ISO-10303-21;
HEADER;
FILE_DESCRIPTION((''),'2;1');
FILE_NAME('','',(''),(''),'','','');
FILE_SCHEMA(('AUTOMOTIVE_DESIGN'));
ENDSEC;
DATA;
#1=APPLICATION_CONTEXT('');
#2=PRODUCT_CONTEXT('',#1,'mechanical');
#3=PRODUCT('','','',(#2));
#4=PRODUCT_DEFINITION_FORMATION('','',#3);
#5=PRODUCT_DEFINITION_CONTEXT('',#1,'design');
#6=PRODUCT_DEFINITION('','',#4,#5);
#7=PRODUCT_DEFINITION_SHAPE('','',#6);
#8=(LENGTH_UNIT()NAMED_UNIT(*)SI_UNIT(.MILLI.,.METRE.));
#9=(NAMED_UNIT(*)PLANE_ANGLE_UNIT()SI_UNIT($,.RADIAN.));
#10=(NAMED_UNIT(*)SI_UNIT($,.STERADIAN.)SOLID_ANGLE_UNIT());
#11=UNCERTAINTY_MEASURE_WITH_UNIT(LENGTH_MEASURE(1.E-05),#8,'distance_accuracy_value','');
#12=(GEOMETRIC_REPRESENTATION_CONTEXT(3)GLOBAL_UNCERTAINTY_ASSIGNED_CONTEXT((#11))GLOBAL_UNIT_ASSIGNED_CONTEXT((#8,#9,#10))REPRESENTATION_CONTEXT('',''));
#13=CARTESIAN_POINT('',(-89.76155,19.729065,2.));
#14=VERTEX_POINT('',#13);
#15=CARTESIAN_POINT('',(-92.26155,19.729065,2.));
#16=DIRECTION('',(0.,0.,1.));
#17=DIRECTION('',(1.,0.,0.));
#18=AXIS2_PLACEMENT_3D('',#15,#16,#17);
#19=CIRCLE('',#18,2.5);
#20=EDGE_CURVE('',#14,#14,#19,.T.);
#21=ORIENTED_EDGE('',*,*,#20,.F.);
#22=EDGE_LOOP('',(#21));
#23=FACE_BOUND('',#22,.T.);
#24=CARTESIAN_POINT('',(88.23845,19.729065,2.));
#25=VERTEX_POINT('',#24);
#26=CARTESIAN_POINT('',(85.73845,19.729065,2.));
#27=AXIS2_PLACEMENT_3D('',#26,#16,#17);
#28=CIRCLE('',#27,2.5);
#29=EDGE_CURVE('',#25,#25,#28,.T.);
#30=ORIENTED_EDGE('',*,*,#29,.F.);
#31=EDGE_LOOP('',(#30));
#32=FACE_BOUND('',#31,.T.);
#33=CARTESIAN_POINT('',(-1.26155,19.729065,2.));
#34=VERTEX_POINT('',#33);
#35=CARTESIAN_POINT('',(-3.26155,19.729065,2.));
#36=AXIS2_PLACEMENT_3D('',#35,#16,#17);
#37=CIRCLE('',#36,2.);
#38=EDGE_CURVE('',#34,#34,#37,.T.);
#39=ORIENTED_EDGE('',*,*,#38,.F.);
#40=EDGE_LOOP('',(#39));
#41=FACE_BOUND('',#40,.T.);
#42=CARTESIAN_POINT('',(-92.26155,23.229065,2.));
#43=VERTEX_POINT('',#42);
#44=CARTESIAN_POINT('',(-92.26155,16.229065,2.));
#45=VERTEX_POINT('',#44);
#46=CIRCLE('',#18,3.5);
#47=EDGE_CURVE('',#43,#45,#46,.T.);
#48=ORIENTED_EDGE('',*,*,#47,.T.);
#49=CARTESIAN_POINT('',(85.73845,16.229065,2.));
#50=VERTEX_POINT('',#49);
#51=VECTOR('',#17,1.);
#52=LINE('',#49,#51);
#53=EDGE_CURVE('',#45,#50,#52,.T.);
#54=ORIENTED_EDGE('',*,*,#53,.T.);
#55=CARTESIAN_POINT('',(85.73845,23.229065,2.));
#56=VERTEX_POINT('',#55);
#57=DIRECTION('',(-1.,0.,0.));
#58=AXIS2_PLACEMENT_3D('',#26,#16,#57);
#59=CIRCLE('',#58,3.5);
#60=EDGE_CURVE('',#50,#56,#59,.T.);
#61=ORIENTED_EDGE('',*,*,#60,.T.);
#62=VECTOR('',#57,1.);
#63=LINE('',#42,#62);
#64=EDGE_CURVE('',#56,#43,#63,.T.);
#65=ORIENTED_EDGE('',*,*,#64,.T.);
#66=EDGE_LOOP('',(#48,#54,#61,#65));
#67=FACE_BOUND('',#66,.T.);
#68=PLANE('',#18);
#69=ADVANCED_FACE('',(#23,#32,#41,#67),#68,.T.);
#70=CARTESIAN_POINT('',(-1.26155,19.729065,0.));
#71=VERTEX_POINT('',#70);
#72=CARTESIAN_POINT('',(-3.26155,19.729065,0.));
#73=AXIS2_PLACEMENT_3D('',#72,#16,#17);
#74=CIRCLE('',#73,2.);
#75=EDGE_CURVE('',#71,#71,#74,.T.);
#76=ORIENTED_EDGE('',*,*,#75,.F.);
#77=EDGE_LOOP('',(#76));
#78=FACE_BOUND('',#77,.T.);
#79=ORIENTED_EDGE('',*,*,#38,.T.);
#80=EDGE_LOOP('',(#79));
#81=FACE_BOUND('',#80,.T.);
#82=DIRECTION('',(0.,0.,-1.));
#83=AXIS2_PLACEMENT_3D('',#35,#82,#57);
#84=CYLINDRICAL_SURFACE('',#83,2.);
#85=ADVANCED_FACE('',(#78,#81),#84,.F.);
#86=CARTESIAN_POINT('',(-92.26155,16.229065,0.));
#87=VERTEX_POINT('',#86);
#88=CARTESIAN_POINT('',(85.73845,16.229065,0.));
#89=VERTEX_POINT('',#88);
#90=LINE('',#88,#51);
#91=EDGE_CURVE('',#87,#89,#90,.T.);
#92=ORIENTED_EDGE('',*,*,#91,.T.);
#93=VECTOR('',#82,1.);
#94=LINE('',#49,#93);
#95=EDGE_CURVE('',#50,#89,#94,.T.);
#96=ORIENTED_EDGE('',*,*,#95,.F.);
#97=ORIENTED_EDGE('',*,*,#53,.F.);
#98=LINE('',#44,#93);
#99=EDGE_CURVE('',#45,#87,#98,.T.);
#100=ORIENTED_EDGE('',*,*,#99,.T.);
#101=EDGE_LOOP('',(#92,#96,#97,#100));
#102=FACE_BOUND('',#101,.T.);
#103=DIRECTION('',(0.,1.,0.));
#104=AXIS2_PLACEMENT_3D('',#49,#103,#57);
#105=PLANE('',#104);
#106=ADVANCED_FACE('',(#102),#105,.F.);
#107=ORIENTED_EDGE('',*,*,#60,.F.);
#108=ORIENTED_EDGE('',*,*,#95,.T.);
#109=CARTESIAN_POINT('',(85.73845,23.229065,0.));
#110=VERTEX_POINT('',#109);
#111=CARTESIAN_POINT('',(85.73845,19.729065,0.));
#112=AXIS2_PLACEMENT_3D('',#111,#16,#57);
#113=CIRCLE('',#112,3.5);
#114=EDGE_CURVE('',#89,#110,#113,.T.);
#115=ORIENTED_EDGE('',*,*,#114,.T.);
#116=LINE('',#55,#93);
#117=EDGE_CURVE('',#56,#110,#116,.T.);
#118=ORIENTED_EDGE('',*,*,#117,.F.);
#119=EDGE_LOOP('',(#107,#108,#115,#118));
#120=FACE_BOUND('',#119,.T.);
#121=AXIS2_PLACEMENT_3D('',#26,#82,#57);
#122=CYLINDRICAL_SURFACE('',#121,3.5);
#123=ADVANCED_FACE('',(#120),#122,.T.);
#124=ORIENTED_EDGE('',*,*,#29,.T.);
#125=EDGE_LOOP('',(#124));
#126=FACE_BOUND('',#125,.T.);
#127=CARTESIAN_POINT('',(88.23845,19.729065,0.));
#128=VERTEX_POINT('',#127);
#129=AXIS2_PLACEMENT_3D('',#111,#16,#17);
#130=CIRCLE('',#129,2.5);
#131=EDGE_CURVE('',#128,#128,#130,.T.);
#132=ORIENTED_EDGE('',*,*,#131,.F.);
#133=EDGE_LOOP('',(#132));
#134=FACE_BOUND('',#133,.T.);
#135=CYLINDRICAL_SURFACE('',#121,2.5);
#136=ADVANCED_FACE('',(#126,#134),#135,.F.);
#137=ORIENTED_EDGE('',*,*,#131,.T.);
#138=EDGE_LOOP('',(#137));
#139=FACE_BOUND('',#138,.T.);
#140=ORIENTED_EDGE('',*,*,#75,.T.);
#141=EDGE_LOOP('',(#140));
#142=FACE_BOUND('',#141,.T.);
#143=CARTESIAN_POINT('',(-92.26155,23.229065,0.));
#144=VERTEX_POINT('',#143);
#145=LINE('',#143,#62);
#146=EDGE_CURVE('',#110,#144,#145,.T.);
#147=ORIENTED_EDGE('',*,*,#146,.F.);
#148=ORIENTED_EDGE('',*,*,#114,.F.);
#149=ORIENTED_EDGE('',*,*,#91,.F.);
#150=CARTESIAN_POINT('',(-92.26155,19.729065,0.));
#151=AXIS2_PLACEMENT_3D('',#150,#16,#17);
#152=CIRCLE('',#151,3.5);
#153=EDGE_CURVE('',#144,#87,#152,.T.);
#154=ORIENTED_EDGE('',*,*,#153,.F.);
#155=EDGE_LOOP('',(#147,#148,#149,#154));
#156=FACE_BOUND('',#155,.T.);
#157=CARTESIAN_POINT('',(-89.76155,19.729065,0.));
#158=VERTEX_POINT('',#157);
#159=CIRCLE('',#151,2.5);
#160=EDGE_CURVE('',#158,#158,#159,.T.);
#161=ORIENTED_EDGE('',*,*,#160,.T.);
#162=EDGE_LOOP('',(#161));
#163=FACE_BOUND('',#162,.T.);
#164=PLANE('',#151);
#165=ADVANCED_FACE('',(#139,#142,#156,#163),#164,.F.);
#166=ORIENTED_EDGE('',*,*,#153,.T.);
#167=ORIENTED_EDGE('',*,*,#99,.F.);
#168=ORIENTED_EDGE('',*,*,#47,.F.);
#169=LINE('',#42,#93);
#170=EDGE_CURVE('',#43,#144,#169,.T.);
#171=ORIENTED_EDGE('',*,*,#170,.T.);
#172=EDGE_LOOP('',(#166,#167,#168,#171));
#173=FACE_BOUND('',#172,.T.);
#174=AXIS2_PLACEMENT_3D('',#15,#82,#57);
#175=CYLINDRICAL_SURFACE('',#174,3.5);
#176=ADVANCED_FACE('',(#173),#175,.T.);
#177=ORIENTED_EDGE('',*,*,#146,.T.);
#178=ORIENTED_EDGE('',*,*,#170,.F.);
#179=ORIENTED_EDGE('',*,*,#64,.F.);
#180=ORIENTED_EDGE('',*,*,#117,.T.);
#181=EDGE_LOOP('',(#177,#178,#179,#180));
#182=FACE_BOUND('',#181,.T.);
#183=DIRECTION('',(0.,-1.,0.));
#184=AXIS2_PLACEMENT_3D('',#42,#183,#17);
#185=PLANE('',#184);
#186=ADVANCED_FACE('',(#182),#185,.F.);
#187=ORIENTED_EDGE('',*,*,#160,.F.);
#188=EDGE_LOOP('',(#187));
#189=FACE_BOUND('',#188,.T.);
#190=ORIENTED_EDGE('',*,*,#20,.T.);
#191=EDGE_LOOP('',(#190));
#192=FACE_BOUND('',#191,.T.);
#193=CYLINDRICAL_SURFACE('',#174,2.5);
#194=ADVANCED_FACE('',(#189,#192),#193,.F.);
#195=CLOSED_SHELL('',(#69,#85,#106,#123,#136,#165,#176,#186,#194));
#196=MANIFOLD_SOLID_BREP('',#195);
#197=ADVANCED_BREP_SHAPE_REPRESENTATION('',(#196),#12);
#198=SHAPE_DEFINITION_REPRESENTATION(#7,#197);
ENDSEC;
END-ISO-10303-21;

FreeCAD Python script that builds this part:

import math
import FreeCAD as App
import Part
import Sketcher
Q = App.Units.Quantity

doc = App.newDocument("Part")
body = doc.addObject("PartDesign::Body", "Body")

# Sketch on XY plane
sketch1 = body.newObject("Sketcher::SketchObject", "Sketch")
sketch1.AttachmentSupport = (doc.getObject("XY_Plane"), [""])
sketch1.MapMode = "FlatFace"
sketch1.addGeometry(Part.LineSegment(App.Vector(85.73845, 23.229065, 0), App.Vector(-92.26155, 23.229065, 0)), False)
sketch1.addGeometry(Part.ArcOfCircle(Part.Circle(App.Vector(-92.26155, 19.729065, 0), App.Vector(0, 0, 1), 3.5), math.radians(90), math.radians(270)), False)
sketch1.addGeometry(Part.LineSegment(App.Vector(-92.26155, 16.229065, 0), App.Vector(85.73845, 16.229065, 0)), False)
sketch1.addGeometry(Part.ArcOfCircle(Part.Circle(App.Vector(85.73845, 19.729065, 0), App.Vector(0, 0, 1), 3.5), math.radians(-90), math.radians(90)), False)
sketch1.addGeometry(Part.Circle(App.Vector(85.73845, 19.729065, 0), App.Vector(0, 0, 1), 2.5), False)
sketch1.addGeometry(Part.Circle(App.Vector(-3.26155, 19.729065, 0), App.Vector(0, 0, 1), 2), False)
sketch1.addGeometry(Part.Circle(App.Vector(-92.26155, 19.729065, 0), App.Vector(0, 0, 1), 2.5), False)
sketch1.addConstraint(Sketcher.Constraint("Tangent", 0, 2, 1, 1))
sketch1.addConstraint(Sketcher.Constraint("Tangent", 1, 2, 2, 1))
sketch1.addConstraint(Sketcher.Constraint("Tangent", 2, 2, 3, 1))
sketch1.addConstraint(Sketcher.Constraint("Tangent", 3, 2, 0, 1))
sketch1.addConstraint(Sketcher.Constraint("Horizontal", 0))
sketch1.addConstraint(Sketcher.Constraint("Horizontal", 2))
sketch1.addConstraint(Sketcher.Constraint("Coincident", 4, 3, 3, 3))
sketch1.addConstraint(Sketcher.Constraint("Coincident", 6, 3, 1, 3))
sketch1.addConstraint(Sketcher.Constraint("Equal", 4, 6))
sketch1.addConstraint(Sketcher.Constraint("Horizontal", 4, 3, 5, 3))
sketch1.addConstraint(Sketcher.Constraint("Diameter", 4, Q("5 mm")))
sketch1.addConstraint(Sketcher.Constraint("Diameter", 5, Q("4 mm")))
sketch1.addConstraint(Sketcher.Constraint("Radius", 1, Q("3.5 mm")))
sketch1.addConstraint(Sketcher.Constraint("DistanceX", 0, 2, 0, 1, Q("178 mm")))
sketch1.addConstraint(Sketcher.Constraint("DistanceX", 1, 3, 5, 3, Q("89 mm")))
sketch1.addConstraint(Sketcher.Constraint("DistanceX", 1, 3, -1, 1, Q("92.26155 mm")))
sketch1.addConstraint(Sketcher.Constraint("DistanceY", -1, 1, 1, 3, Q("19.729065 mm")))
pad1 = body.newObject("PartDesign::Pad", "Pad")
pad1.Profile = sketch1
pad1.Length = 2

doc.recompute()
